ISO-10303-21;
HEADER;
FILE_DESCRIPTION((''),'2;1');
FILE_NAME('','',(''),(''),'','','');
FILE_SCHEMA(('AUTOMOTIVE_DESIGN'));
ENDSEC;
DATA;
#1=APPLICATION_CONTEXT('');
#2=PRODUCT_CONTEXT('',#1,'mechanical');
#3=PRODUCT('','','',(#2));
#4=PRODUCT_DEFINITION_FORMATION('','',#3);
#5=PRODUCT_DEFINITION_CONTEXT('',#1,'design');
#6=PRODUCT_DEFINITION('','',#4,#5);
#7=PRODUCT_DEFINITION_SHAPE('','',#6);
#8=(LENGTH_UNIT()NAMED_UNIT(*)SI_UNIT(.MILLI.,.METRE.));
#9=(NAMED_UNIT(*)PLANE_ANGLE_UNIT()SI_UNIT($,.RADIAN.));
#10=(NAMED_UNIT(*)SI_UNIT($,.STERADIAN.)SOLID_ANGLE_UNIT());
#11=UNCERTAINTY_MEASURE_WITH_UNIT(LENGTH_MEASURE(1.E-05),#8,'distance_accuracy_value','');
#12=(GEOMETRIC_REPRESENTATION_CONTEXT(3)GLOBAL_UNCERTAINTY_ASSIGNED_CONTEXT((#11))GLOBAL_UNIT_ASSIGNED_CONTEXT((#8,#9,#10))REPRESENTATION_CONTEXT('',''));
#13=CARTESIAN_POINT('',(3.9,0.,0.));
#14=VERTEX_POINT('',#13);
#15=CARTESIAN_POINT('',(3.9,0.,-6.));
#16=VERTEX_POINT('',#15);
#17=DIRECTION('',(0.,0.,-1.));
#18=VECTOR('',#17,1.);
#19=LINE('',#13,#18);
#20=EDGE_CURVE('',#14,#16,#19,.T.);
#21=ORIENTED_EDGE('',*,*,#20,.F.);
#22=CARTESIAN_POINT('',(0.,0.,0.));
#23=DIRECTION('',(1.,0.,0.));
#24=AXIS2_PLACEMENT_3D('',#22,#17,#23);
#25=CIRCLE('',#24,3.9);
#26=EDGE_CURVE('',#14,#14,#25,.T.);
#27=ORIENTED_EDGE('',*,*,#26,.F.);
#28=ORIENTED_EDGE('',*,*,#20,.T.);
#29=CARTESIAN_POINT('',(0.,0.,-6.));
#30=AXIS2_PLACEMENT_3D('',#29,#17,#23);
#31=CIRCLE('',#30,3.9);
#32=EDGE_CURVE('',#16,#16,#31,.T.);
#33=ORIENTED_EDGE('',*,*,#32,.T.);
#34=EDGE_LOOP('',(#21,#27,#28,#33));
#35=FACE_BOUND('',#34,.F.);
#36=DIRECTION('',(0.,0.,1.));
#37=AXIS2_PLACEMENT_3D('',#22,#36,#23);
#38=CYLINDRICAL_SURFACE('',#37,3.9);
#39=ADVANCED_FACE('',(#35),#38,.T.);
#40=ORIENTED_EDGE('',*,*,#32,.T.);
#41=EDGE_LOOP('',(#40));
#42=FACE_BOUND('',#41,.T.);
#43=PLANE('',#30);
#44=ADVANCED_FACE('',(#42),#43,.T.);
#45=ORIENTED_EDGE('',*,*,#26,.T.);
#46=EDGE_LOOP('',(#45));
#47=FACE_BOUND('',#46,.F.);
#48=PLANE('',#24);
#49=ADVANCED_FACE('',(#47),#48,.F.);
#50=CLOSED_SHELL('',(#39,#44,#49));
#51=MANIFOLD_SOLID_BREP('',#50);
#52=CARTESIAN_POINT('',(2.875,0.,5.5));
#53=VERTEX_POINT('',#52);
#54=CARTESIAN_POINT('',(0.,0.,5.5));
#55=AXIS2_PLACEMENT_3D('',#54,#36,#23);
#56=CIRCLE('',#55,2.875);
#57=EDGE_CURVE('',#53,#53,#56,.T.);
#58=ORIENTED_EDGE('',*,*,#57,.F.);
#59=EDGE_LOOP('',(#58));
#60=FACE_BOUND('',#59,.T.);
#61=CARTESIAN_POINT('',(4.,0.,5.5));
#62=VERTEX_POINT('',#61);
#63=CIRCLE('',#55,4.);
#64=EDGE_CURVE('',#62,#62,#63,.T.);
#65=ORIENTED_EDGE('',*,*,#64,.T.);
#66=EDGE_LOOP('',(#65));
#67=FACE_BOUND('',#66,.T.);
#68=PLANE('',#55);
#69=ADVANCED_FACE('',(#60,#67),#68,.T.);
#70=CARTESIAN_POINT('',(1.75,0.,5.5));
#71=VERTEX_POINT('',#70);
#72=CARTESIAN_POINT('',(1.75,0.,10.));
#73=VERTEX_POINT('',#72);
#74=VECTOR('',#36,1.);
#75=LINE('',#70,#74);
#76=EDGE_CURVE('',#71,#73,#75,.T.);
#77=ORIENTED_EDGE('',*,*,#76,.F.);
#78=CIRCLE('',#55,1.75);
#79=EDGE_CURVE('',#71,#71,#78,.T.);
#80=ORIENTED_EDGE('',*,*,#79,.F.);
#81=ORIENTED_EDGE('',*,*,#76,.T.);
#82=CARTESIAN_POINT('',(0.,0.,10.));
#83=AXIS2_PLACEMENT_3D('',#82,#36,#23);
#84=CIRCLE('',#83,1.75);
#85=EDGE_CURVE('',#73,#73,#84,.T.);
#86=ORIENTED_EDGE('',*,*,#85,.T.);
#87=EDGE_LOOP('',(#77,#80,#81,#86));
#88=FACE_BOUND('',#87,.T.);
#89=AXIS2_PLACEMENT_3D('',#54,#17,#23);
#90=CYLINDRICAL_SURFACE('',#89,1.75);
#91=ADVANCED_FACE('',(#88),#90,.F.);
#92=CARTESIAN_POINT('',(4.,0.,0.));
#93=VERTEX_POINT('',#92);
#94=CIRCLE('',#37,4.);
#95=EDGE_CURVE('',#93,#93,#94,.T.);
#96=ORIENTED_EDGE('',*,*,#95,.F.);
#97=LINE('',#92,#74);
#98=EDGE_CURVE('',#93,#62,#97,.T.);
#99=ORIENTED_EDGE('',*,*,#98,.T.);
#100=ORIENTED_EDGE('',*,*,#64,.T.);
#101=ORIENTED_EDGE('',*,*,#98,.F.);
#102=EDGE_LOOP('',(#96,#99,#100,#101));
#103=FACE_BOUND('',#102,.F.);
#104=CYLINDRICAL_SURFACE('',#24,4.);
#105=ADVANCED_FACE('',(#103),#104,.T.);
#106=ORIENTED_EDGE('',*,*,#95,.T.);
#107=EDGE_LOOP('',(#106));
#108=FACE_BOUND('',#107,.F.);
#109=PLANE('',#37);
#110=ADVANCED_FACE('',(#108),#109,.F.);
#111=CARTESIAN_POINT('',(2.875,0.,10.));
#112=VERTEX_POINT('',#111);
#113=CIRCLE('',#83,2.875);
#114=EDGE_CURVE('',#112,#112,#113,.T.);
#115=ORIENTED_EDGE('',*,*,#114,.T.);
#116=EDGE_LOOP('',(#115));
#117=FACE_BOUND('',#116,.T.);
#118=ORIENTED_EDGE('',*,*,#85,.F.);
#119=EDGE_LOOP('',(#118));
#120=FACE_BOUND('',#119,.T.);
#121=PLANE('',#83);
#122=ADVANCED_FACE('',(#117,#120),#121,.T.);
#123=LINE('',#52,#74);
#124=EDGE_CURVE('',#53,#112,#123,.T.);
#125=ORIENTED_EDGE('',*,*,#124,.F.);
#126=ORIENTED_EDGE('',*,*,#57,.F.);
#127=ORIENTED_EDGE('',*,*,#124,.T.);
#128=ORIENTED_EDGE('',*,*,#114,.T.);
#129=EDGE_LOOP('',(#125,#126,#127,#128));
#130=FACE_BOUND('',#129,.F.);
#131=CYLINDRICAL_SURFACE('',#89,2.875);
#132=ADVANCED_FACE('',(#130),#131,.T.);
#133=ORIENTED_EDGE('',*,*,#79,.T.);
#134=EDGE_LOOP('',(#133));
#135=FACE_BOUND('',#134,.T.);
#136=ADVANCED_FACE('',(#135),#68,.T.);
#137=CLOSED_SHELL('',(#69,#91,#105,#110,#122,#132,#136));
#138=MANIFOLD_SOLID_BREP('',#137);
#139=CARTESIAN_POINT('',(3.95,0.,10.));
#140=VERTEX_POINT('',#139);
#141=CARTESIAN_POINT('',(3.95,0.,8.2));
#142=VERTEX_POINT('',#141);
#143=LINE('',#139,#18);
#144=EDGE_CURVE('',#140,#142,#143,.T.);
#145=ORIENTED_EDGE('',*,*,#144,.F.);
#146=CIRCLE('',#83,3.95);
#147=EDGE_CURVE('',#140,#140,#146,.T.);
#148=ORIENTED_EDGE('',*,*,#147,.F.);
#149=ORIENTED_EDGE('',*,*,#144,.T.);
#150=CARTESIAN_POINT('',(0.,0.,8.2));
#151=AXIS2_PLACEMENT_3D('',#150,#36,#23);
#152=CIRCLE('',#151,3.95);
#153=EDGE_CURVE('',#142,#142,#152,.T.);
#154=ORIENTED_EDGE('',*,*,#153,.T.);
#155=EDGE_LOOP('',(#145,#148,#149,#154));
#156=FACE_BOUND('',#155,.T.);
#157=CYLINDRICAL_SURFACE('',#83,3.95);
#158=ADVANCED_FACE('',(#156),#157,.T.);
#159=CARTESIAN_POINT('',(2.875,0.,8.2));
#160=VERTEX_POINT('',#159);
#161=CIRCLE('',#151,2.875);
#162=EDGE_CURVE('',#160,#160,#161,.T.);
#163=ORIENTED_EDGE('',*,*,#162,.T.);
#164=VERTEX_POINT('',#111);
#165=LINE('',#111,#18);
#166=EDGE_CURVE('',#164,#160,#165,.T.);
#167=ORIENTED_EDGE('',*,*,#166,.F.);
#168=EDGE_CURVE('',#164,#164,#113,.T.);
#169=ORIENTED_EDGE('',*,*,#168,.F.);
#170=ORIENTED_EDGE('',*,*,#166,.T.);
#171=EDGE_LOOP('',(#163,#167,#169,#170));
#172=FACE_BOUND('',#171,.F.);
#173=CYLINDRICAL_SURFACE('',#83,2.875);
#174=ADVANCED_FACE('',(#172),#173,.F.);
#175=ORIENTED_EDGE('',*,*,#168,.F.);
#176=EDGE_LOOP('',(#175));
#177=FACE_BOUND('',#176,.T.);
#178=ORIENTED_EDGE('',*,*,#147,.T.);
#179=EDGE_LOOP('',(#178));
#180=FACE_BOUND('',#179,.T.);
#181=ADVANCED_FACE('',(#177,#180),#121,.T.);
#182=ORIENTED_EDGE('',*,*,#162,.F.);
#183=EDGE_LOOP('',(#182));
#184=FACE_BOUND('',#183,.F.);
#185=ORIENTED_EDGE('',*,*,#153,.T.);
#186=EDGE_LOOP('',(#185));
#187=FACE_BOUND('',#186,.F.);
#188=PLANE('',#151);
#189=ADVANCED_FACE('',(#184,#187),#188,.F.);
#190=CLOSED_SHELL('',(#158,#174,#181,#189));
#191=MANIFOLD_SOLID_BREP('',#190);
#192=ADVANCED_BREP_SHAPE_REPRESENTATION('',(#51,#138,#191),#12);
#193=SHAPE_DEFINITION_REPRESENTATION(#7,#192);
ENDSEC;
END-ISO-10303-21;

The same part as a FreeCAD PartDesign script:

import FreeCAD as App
import Part
import Sketcher

V = App.Vector
Q = App.Units.Quantity

doc = App.newDocument("Part")
body = doc.addObject("PartDesign::Body", "Body")

# Sketch on XY plane
sketch1 = doc.addObject("Sketcher::SketchObject", "Sketch")
body.addObject(sketch1)
sketch1.AttachmentSupport = (doc.XY_Plane, [""])
sketch1.MapMode = "FlatFace"
sketch1.addGeometry(Part.Circle(V(0, 0, 0), V(0, 0, 1), 4), False)
sketch1.addConstraint([
    Sketcher.Constraint("Coincident", 0, 3, -1, 1),
    Sketcher.Constraint("Diameter", 0, Q("8 mm")),
])
pad1 = doc.addObject("PartDesign::Pad", "Pad")
body.addObject(pad1)
pad1.Profile = sketch1
pad1.Length = 5.5

# Sketch on XY plane
sketch2 = doc.addObject("Sketcher::SketchObject", "Sketch001")
body.addObject(sketch2)
sketch2.AttachmentSupport = (doc.XY_Plane, [""])
sketch2.MapMode = "FlatFace"
sketch2.AttachmentOffset = App.Placement(V(0, 0, 5.5), App.Rotation())
sketch2.addGeometry([
    Part.Circle(V(0, 0, 0), V(0, 0, 1), 2.875),
    Part.Circle(V(0, 0, 0), V(0, 0, 1), 1.75),
], False)
sketch2.addConstraint([
    Sketcher.Constraint("Coincident", 0, 3, -1, 1),
    Sketcher.Constraint("Coincident", 1, 3, -1, 1),
    Sketcher.Constraint("Diameter", 1, Q("3.5 mm")),
    Sketcher.Constraint("Diameter", 0, Q("5.75 mm")),
])
pad2 = doc.addObject("PartDesign::Pad", "Pad001")
body.addObject(pad2)
pad2.Profile = sketch2
pad2.Length = 4.5
body2 = doc.addObject("PartDesign::Body", "Body001")

# Sketch on XY plane
sketch3 = doc.addObject("Sketcher::SketchObject", "Sketch002")
body2.addObject(sketch3)
sketch3.AttachmentSupport = (doc.getObject("XY_Plane001"), [""])
sketch3.MapMode = "FlatFace"
sketch3.addGeometry(Part.Circle(V(0, 0, 0), V(0, 0, 1), 3.9), False)
sketch3.addConstraint([
    Sketcher.Constraint("Coincident", 0, 3, -1, 1),
    Sketcher.Constraint("Diameter", 0, Q("7.8 mm")),
])
pad3 = doc.addObject("PartDesign::Pad", "Pad002")
body2.addObject(pad3)
pad3.Profile = sketch3
pad3.Length = 6
pad3.Reversed = True
body3 = doc.addObject("PartDesign::Body", "Body002")

# Sketch on XY plane
sketch4 = doc.addObject("Sketcher::SketchObject", "Sketch003")
body3.addObject(sketch4)
sketch4.AttachmentSupport = (doc.getObject("XY_Plane002"), [""])
sketch4.MapMode = "FlatFace"
sketch4.AttachmentOffset = App.Placement(V(0, 0, 10), App.Rotation())
sketch4.addGeometry([
    Part.Circle(V(0, 0, 0), V(0, 0, 1), 3.95),
    Part.Circle(V(0, 0, 0), V(0, 0, 1), 2.875),
], False)
sketch4.addConstraint([
    Sketcher.Constraint("Coincident", 0, 3, -1, 1),
    Sketcher.Constraint("Coincident", 1, 3, -1, 1),
    Sketcher.Constraint("Diameter", 0, Q("7.9 mm")),
    Sketcher.Constraint("Diameter", 1, Q("5.75 mm")),
])
pad4 = doc.addObject("PartDesign::Pad", "Pad003")
body3.addObject(pad4)
pad4.Profile = sketch4
pad4.Length = 1.8
pad4.Reversed = True

doc.recompute()
